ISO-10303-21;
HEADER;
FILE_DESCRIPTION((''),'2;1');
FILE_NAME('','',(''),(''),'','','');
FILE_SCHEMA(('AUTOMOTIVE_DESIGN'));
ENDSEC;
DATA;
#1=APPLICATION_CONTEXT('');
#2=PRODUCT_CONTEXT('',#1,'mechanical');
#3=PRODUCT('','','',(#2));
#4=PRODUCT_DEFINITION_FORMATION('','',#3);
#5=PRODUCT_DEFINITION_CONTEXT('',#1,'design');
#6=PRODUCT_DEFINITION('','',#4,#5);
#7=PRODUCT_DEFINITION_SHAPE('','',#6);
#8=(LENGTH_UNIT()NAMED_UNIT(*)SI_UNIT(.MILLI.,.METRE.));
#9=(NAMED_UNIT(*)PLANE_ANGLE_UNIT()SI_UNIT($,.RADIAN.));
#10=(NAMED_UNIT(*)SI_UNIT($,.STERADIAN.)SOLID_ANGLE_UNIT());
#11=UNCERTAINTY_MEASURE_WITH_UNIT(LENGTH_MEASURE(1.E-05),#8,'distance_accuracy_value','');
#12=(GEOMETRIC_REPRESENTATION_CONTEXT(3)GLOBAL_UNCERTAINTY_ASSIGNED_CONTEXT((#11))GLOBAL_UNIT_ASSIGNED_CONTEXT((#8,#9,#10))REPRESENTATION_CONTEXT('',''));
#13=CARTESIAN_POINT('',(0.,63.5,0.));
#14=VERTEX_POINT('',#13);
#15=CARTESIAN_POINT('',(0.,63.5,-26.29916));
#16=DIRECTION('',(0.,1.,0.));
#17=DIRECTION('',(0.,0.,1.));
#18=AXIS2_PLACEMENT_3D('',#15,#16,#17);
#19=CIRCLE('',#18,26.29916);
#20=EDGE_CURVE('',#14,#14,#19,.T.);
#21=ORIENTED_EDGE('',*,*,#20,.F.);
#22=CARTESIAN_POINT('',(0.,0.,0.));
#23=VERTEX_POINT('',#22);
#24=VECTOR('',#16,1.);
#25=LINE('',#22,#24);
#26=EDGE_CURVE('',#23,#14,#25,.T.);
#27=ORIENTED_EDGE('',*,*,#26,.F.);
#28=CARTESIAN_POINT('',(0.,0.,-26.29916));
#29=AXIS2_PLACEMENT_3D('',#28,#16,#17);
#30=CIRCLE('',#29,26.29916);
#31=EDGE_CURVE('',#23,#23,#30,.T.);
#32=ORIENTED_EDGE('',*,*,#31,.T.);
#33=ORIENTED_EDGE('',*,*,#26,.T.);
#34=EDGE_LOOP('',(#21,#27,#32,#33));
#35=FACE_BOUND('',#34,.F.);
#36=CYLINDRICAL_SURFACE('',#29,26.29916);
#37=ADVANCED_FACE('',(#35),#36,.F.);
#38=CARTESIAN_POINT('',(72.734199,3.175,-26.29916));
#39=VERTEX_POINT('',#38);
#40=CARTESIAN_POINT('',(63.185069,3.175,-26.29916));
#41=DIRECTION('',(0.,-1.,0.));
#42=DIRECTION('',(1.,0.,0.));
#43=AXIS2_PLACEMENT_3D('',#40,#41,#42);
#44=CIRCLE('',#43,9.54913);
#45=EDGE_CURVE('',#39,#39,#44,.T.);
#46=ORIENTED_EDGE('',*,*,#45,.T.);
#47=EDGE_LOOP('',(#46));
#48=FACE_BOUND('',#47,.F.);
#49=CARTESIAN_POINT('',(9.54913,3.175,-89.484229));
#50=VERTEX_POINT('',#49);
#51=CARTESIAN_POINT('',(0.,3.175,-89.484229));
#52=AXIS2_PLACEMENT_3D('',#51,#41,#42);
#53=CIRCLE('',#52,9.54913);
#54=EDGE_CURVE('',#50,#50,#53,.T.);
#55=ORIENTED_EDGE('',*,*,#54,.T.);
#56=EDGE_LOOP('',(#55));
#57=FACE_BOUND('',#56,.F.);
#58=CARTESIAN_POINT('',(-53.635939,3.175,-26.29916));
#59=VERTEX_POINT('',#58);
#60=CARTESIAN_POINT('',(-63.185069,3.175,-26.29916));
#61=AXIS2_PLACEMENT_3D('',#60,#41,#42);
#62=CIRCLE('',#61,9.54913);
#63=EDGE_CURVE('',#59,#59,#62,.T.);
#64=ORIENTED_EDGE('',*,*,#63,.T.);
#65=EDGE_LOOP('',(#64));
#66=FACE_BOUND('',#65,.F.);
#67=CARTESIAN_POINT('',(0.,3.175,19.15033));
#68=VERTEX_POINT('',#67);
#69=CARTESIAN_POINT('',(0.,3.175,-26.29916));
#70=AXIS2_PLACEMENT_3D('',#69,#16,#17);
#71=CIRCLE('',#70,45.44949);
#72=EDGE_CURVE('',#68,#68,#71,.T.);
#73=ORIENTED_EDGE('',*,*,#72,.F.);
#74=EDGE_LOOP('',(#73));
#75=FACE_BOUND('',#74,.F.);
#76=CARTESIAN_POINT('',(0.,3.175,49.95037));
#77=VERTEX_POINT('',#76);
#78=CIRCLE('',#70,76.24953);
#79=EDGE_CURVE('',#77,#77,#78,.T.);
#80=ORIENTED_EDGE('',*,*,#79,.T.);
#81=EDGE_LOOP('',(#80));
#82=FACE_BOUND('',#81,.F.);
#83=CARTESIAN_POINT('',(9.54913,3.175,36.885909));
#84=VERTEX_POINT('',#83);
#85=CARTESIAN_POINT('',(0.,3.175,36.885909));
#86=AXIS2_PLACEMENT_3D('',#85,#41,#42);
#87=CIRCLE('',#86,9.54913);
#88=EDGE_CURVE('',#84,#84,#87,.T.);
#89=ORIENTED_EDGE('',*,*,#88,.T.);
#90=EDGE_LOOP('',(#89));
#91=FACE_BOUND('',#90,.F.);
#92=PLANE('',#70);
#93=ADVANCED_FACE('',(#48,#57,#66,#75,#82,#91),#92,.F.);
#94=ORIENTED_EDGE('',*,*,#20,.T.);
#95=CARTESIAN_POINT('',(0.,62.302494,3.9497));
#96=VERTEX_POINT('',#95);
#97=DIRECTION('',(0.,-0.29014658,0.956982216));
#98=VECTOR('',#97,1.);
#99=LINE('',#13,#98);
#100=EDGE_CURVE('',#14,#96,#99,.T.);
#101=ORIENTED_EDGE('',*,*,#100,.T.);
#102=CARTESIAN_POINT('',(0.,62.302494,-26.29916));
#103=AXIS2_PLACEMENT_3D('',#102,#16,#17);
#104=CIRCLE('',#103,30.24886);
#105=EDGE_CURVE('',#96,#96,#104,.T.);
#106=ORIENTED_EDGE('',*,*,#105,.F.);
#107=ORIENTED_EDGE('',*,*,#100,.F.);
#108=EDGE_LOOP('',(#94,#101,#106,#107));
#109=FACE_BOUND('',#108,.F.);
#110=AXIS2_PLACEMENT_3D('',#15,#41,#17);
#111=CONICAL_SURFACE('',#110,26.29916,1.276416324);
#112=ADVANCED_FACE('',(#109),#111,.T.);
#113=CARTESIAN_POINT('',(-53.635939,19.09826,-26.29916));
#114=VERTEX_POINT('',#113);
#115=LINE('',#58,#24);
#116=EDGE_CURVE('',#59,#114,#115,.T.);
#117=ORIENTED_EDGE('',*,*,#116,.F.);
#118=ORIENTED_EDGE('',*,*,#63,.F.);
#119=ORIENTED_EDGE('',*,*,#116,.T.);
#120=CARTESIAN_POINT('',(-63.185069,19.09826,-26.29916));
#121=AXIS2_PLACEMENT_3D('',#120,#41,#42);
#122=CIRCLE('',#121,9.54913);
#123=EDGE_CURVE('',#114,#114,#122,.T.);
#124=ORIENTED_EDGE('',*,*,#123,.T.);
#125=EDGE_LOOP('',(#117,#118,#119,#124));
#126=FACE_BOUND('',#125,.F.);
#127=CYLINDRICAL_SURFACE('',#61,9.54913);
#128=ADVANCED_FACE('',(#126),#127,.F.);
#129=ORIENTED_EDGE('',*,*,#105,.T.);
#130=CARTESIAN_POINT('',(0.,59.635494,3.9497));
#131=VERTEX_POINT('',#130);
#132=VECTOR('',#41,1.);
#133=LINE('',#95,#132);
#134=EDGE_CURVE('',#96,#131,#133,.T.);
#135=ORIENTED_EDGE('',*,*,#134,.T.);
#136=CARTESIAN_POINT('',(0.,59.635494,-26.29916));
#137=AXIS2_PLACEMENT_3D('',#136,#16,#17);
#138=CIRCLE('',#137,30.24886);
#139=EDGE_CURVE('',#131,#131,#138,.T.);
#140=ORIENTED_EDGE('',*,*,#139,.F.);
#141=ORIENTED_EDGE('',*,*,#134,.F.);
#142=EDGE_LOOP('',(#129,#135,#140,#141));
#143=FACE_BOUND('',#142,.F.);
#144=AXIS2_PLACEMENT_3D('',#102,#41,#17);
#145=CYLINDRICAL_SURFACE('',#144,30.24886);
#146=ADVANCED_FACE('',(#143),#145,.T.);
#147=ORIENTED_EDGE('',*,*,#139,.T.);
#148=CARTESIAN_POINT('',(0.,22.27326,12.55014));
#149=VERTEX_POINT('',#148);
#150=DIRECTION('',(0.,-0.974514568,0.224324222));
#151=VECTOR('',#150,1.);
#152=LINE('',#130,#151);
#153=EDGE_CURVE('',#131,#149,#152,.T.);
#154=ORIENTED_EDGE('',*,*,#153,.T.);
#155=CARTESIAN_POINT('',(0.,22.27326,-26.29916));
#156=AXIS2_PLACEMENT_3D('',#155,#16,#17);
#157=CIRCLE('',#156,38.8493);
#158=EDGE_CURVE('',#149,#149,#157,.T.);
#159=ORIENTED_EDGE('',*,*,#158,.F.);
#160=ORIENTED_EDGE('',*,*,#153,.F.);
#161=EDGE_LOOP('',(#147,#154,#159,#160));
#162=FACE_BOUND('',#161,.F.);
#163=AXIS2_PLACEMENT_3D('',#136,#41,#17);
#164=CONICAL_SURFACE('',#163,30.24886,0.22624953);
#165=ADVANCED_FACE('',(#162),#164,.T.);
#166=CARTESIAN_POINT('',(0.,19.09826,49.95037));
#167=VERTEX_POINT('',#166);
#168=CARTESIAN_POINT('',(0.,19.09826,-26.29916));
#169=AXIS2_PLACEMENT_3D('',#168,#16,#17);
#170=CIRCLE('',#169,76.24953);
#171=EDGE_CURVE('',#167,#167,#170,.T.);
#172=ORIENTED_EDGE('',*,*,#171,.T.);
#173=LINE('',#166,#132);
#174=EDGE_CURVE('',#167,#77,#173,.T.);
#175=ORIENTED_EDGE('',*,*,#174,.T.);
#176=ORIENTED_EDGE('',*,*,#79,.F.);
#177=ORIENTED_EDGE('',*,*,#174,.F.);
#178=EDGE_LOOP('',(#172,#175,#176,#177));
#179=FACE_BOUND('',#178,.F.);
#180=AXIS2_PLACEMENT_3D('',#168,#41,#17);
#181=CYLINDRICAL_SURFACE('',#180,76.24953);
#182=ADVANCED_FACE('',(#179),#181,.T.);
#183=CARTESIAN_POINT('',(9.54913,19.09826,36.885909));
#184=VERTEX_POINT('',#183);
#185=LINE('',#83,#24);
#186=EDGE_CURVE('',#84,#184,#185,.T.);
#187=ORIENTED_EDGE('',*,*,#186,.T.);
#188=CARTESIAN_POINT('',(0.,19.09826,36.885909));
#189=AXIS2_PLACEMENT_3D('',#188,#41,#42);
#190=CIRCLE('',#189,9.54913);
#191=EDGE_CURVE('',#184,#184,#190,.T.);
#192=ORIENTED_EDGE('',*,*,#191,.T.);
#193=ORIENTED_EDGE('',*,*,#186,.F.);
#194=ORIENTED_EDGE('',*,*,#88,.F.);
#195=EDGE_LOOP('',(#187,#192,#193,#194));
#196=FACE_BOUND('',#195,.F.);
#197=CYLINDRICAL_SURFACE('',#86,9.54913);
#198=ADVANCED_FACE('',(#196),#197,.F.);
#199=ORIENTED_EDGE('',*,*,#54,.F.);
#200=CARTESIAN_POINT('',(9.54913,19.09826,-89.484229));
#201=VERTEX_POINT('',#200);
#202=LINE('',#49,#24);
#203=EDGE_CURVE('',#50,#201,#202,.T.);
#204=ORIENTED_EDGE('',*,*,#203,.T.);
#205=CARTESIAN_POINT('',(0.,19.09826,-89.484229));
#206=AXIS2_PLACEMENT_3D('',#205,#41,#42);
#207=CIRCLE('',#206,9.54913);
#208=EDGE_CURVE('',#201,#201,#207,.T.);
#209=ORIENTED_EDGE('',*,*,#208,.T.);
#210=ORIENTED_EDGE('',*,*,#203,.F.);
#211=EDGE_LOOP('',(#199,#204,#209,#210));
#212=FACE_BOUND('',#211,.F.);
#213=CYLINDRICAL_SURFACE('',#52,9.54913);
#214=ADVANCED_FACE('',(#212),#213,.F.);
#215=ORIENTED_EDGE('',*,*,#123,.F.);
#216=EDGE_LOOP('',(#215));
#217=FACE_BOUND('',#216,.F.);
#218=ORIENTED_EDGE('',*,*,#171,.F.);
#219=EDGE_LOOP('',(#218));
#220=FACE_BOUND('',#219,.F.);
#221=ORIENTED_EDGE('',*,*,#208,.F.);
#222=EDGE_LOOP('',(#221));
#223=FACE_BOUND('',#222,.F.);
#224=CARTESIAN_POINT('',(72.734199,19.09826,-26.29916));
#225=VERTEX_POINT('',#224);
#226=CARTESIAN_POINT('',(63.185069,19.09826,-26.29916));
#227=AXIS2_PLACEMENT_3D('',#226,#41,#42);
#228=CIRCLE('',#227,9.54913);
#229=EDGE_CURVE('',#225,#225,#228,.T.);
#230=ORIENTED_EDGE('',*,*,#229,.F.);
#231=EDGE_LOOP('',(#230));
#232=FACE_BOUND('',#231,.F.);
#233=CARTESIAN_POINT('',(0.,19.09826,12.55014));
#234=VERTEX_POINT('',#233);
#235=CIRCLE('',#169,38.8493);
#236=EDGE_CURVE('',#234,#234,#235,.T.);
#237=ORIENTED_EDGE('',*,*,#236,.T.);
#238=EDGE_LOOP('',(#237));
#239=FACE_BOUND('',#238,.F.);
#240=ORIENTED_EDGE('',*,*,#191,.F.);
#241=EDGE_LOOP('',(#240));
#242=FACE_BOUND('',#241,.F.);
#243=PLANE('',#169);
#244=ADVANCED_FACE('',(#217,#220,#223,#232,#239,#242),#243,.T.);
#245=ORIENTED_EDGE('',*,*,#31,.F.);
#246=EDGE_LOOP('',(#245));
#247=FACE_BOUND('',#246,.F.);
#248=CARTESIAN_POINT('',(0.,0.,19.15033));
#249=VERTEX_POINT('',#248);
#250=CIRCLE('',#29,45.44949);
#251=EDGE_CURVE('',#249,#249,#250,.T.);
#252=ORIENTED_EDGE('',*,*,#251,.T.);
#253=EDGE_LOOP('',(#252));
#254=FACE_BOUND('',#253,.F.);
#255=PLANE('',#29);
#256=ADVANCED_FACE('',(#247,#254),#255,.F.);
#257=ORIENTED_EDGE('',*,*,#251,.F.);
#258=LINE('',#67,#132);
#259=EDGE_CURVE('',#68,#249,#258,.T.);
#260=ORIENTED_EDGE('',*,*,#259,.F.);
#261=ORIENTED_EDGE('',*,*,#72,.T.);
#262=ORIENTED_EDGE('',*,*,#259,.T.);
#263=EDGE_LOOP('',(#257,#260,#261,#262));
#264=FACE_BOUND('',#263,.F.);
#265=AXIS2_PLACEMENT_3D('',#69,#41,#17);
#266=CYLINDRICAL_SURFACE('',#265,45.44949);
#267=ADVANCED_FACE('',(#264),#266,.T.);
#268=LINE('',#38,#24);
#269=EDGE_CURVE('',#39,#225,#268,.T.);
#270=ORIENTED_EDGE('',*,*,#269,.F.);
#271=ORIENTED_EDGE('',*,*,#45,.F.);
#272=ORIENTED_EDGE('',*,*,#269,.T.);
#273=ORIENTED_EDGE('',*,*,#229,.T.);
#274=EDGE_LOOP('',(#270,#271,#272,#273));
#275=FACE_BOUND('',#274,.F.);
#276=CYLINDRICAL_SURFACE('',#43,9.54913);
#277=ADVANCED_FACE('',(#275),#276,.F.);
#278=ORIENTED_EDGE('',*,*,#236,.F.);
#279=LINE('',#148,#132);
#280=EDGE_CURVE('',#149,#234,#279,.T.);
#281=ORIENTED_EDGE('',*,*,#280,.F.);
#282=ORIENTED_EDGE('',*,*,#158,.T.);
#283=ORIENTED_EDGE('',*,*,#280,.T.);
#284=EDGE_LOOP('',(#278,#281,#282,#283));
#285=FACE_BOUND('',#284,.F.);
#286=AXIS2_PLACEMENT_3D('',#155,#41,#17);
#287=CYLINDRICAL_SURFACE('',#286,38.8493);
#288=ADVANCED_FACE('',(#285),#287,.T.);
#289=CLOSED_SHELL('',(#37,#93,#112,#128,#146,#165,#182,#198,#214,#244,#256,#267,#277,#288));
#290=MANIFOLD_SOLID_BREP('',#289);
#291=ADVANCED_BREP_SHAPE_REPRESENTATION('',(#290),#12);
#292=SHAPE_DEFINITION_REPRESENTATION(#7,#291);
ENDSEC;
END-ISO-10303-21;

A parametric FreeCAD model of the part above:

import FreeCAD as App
import Part
import Sketcher
from FreeCAD import Vector
Q = App.Units.Quantity


def add_polygon(sketch, points):
    """Adds a closed chain of lines whose ends are joined by coincident constraints."""
    first, n = sketch.GeometryCount, len(points)
    for a, b in zip(points, points[1:] + points[:1]):
        sketch.addGeometry(Part.LineSegment(App.Vector(*a, 0), App.Vector(*b, 0)), False)
    for i in range(n):
        sketch.addConstraint(Sketcher.Constraint("Coincident", first + i, 2, first + (i + 1) % n, 1))

doc = App.newDocument("Part")
body = doc.addObject("PartDesign::Body", "Body")

sketch1 = body.newObject("Sketcher::SketchObject", "Sketch")
sketch1.AttachmentSupport = (doc.getObject("YZ_Plane"), [""])
sketch1.MapMode = "FlatFace"
add_polygon(sketch1, [(0, 19.15033), (0, 0), (63.5, 0), (62.302494, 3.9497), (59.635494, 3.9497), (22.27326, 12.55014), (19.09826, 12.55014), (19.09826, 49.95037), (3.175, 49.95037), (3.175, 19.15033)])
sketch1.addGeometry(Part.LineSegment(Vector(0, -26.29916, 0), Vector(63.5, -26.29916, 0)), True)
sketch1.addConstraint([
    Sketcher.Constraint("Vertical", 0),
    Sketcher.Constraint("Horizontal", 1),
    Sketcher.Constraint("Horizontal", 3),
    Sketcher.Constraint("Horizontal", 5),
    Sketcher.Constraint("Vertical", 6),
    Sketcher.Constraint("Horizontal", 7),
    Sketcher.Constraint("Vertical", 8),
    Sketcher.Constraint("Horizontal", 9),
    Sketcher.Constraint("Horizontal", 10),
    Sketcher.Constraint("Coincident", 0, 2, -1, 1),
    Sketcher.Constraint("PointOnObject", 10, 1, -2),
    Sketcher.Constraint("Vertical", 1, 2, 10, 2),
    Sketcher.Constraint("Equal", 5, 9),
    Sketcher.Constraint("DistanceX", 1, 1, 1, 2, Q("2.5 in")),
    Sketcher.Constraint("DistanceX", 3, 2, 3, 1, Q("0.105 in")),
    Sketcher.Constraint("DistanceX", 5, 2, 5, 1, Q("0.125 in")),
    Sketcher.Constraint("DistanceX", 7, 2, 7, 1, Q("0.6269 in")),
    Sketcher.Constraint("DistanceY", 8, 2, 8, 1, Q("1.2126 in")),
    Sketcher.Constraint("DistanceY", -1, 1, 2, 2, Q("0.1555 in")),
    Sketcher.Constraint("DistanceY", -1, 1, 4, 2, Q("0.4941 in")),
    Sketcher.Constraint("DistanceY", 10, 1, -1, 1, Q("1.0354 in")),
    Sketcher.Constraint("DistanceY", 0, 2, 0, 1, Q("19.15033 mm")),
    Sketcher.Constraint("Distance", 4, Q("38.339328 mm")),
])
revolution = body.newObject("PartDesign::Revolution", "Revolution")
revolution.Profile = sketch1
revolution.ReferenceAxis = (sketch1, ["Axis0"])
revolution.Angle = 360

sketch2 = body.newObject("Sketcher::SketchObject", "Sketch001")
sketch2.AttachmentSupport = (doc.getObject("XZ_Plane"), [""])
sketch2.MapMode = "FlatFace"
sketch2.AttachmentOffset = App.Placement(Vector(0, 0, -0.125 * 25.4), App.Rotation())
sketch2.addGeometry([
    Part.Circle(Vector(0, 36.885909, 0), Vector(0, 0, 1), 9.54913),
    Part.Circle(Vector(63.185069, -26.29916, 0), Vector(0, 0, 1), 9.54913),
    Part.Circle(Vector(0, -89.484229, 0), Vector(0, 0, 1), 9.54913),
    Part.Circle(Vector(-63.185069, -26.29916, 0), Vector(0, 0, 1), 9.54913),
], False)
sketch2.addConstraint([
    Sketcher.Constraint("Equal", 0, 1),
    Sketcher.Constraint("Equal", 1, 2),
    Sketcher.Constraint("Equal", 2, 3),
    Sketcher.Constraint("Symmetric", 1, 3, 3, 3, -2),
    Sketcher.Constraint("PointOnObject", 0, 3, -2),
    Sketcher.Constraint("PointOnObject", 2, 3, -2),
    Sketcher.Constraint("Diameter", 0, Q("0.7519 in")),
    Sketcher.Constraint("DistanceY", 1, 3, -1, 1, Q("1.0354 in")),
    Sketcher.Constraint("DistanceY", -1, 1, 0, 3, Q("36.885909 mm")),
    Sketcher.Constraint("DistanceX", -1, 1, 1, 3, Q("63.185069 mm")),
    Sketcher.Constraint("DistanceY", 2, 3, -1, 1, Q("89.484229 mm")),
])
pocket1 = body.newObject("PartDesign::Pocket", "Pocket")
pocket1.Profile = sketch2
pocket1.Type = "ThroughAll"

doc.recompute()
